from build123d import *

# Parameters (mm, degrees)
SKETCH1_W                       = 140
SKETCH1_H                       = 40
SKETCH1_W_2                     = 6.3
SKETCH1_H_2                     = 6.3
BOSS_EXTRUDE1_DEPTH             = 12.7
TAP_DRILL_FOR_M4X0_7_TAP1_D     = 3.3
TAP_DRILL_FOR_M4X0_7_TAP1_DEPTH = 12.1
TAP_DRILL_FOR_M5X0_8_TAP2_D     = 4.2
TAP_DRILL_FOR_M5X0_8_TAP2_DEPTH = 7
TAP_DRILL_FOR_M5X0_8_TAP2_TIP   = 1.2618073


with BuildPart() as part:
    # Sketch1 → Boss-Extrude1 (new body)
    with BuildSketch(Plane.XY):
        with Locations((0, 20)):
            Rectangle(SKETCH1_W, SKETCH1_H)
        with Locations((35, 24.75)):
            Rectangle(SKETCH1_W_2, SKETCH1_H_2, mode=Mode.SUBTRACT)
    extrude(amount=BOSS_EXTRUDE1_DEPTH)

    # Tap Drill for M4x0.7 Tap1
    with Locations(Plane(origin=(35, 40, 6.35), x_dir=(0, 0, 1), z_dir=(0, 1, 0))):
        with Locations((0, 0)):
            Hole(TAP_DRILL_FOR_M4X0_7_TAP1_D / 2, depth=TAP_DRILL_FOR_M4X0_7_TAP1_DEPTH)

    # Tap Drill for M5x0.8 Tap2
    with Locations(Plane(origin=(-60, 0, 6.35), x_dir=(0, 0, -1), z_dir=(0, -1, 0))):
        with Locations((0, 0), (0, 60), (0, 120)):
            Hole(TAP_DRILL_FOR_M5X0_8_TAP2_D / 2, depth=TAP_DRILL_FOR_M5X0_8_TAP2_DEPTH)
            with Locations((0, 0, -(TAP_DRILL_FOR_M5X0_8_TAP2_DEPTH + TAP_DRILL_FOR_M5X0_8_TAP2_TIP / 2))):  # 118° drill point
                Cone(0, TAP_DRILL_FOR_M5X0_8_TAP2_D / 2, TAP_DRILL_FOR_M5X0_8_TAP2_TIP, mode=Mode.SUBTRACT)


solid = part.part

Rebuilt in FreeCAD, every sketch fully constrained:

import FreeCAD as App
import Part
import Sketcher

V = App.Vector


def add_polygon(sketch, points):
    """Adds a closed chain of lines whose ends are joined by coincident constraints."""
    first, n = sketch.GeometryCount, len(points)
    for a, b in zip(points, points[1:] + points[:1]):
        sketch.addGeometry(Part.LineSegment(App.Vector(*a, 0), App.Vector(*b, 0)), False)
    for i in range(n):
        sketch.addConstraint(Sketcher.Constraint("Coincident", first + i, 2, first + (i + 1) % n, 1))

doc = App.newDocument("Part")
body = doc.addObject("PartDesign::Body", "Body")

# Sketch on XY plane
sketch1 = body.newObject("Sketcher::SketchObject", "Sketch")
sketch1.AttachmentSupport = (doc.getObject("XY_Plane"), [""])
sketch1.MapMode = "FlatFace"
add_polygon(sketch1, [(-70, 40), (-70, 0), (70, 0), (70, 40)])  # lines 0-3
add_polygon(sketch1, [(38.15, 21.6), (31.85, 21.6), (31.85, 27.9), (38.15, 27.9)])  # lines 4-7
sketch1.addConstraint([
    Sketcher.Constraint("Vertical", 0),
    Sketcher.Constraint("Horizontal", 1),
    Sketcher.Constraint("Vertical", 2),
    Sketcher.Constraint("Horizontal", 3),
    Sketcher.Constraint("Horizontal", 4),
    Sketcher.Constraint("Vertical", 5),
    Sketcher.Constraint("Horizontal", 6),
    Sketcher.Constraint("Vertical", 7),
    Sketcher.Constraint("Symmetric", 0, 2, 1, 2, -1, 1),
    Sketcher.Constraint("Equal", 6, 5),
    Sketcher.Constraint("DistanceX", 1, 1, 1, 2, 140.0),
    Sketcher.Constraint("DistanceY", 0, 2, 0, 1, 40.0),
    Sketcher.Constraint("DistanceX", 4, 2, 4, 1, 6.3),
    Sketcher.Constraint("DistanceY", -1, 1, 4, 2, 21.6),
    Sketcher.Constraint("DistanceX", -1, 1, 4, 2, 31.85),
])
pad1 = body.newObject("PartDesign::Pad", "Pad")
pad1.Profile = sketch1
pad1.Length = 12.7

# Sketch on XZ plane
sketch2 = body.newObject("Sketcher::SketchObject", "Sketch001")
sketch2.AttachmentSupport = (doc.getObject("XZ_Plane"), [""])
sketch2.MapMode = "FlatFace"
sketch2.AttachmentOffset = App.Placement(V(0, 0, -40), App.Rotation())
sketch2.addGeometry(Part.Circle(V(35, 6.35, 0), V(0, 0, 1), 1.65), False)
sketch2.addConstraint([
    Sketcher.Constraint("Diameter", 0, 3.3),
    Sketcher.Constraint("DistanceX", -1, 1, 0, 3, 35.0),
    Sketcher.Constraint("DistanceY", -1, 1, 0, 3, 6.35),
])
doc.recompute()
hole = body.newObject("PartDesign::Hole", "Hole")
hole.Profile = sketch2
hole.ThreadType = "None"
hole.Diameter = 3.3
hole.DepthType = "Dimension"
hole.Depth = 12.1
hole.DrillPoint = "Flat"
hole.Reversed = True

# Sketch on XZ plane
sketch3 = body.newObject("Sketcher::SketchObject", "Sketch002")
sketch3.AttachmentSupport = (doc.getObject("XZ_Plane"), [""])
sketch3.MapMode = "FlatFace"
sketch3.addGeometry([
    Part.Circle(V(-60, 6.35, 0), V(0, 0, 1), 2.1),
    Part.Circle(V(0, 6.35, 0), V(0, 0, 1), 2.1),
    Part.Circle(V(60, 6.35, 0), V(0, 0, 1), 2.1),
], False)
sketch3.addConstraint([
    Sketcher.Constraint("Equal", 0, 1),
    Sketcher.Constraint("Equal", 1, 2),
    Sketcher.Constraint("Symmetric", 0, 3, 2, 3, -2),
    Sketcher.Constraint("PointOnObject", 1, 3, -2),
    Sketcher.Constraint("Horizontal", 0, 3, 1, 3),
    Sketcher.Constraint("Diameter", 0, 4.2),
    Sketcher.Constraint("DistanceX", 0, 3, -1, 1, 60.0),
    Sketcher.Constraint("DistanceY", -1, 1, 0, 3, 6.35),
])
doc.recompute()
hole2 = body.newObject("PartDesign::Hole", "Hole001")
hole2.Profile = sketch3
hole2.ThreadType = "None"
hole2.Diameter = 4.2
hole2.DepthType = "Dimension"
hole2.Depth = 7
hole2.DrillPoint = "Angled"
hole2.DrillPointAngle = 118

doc.recompute()
